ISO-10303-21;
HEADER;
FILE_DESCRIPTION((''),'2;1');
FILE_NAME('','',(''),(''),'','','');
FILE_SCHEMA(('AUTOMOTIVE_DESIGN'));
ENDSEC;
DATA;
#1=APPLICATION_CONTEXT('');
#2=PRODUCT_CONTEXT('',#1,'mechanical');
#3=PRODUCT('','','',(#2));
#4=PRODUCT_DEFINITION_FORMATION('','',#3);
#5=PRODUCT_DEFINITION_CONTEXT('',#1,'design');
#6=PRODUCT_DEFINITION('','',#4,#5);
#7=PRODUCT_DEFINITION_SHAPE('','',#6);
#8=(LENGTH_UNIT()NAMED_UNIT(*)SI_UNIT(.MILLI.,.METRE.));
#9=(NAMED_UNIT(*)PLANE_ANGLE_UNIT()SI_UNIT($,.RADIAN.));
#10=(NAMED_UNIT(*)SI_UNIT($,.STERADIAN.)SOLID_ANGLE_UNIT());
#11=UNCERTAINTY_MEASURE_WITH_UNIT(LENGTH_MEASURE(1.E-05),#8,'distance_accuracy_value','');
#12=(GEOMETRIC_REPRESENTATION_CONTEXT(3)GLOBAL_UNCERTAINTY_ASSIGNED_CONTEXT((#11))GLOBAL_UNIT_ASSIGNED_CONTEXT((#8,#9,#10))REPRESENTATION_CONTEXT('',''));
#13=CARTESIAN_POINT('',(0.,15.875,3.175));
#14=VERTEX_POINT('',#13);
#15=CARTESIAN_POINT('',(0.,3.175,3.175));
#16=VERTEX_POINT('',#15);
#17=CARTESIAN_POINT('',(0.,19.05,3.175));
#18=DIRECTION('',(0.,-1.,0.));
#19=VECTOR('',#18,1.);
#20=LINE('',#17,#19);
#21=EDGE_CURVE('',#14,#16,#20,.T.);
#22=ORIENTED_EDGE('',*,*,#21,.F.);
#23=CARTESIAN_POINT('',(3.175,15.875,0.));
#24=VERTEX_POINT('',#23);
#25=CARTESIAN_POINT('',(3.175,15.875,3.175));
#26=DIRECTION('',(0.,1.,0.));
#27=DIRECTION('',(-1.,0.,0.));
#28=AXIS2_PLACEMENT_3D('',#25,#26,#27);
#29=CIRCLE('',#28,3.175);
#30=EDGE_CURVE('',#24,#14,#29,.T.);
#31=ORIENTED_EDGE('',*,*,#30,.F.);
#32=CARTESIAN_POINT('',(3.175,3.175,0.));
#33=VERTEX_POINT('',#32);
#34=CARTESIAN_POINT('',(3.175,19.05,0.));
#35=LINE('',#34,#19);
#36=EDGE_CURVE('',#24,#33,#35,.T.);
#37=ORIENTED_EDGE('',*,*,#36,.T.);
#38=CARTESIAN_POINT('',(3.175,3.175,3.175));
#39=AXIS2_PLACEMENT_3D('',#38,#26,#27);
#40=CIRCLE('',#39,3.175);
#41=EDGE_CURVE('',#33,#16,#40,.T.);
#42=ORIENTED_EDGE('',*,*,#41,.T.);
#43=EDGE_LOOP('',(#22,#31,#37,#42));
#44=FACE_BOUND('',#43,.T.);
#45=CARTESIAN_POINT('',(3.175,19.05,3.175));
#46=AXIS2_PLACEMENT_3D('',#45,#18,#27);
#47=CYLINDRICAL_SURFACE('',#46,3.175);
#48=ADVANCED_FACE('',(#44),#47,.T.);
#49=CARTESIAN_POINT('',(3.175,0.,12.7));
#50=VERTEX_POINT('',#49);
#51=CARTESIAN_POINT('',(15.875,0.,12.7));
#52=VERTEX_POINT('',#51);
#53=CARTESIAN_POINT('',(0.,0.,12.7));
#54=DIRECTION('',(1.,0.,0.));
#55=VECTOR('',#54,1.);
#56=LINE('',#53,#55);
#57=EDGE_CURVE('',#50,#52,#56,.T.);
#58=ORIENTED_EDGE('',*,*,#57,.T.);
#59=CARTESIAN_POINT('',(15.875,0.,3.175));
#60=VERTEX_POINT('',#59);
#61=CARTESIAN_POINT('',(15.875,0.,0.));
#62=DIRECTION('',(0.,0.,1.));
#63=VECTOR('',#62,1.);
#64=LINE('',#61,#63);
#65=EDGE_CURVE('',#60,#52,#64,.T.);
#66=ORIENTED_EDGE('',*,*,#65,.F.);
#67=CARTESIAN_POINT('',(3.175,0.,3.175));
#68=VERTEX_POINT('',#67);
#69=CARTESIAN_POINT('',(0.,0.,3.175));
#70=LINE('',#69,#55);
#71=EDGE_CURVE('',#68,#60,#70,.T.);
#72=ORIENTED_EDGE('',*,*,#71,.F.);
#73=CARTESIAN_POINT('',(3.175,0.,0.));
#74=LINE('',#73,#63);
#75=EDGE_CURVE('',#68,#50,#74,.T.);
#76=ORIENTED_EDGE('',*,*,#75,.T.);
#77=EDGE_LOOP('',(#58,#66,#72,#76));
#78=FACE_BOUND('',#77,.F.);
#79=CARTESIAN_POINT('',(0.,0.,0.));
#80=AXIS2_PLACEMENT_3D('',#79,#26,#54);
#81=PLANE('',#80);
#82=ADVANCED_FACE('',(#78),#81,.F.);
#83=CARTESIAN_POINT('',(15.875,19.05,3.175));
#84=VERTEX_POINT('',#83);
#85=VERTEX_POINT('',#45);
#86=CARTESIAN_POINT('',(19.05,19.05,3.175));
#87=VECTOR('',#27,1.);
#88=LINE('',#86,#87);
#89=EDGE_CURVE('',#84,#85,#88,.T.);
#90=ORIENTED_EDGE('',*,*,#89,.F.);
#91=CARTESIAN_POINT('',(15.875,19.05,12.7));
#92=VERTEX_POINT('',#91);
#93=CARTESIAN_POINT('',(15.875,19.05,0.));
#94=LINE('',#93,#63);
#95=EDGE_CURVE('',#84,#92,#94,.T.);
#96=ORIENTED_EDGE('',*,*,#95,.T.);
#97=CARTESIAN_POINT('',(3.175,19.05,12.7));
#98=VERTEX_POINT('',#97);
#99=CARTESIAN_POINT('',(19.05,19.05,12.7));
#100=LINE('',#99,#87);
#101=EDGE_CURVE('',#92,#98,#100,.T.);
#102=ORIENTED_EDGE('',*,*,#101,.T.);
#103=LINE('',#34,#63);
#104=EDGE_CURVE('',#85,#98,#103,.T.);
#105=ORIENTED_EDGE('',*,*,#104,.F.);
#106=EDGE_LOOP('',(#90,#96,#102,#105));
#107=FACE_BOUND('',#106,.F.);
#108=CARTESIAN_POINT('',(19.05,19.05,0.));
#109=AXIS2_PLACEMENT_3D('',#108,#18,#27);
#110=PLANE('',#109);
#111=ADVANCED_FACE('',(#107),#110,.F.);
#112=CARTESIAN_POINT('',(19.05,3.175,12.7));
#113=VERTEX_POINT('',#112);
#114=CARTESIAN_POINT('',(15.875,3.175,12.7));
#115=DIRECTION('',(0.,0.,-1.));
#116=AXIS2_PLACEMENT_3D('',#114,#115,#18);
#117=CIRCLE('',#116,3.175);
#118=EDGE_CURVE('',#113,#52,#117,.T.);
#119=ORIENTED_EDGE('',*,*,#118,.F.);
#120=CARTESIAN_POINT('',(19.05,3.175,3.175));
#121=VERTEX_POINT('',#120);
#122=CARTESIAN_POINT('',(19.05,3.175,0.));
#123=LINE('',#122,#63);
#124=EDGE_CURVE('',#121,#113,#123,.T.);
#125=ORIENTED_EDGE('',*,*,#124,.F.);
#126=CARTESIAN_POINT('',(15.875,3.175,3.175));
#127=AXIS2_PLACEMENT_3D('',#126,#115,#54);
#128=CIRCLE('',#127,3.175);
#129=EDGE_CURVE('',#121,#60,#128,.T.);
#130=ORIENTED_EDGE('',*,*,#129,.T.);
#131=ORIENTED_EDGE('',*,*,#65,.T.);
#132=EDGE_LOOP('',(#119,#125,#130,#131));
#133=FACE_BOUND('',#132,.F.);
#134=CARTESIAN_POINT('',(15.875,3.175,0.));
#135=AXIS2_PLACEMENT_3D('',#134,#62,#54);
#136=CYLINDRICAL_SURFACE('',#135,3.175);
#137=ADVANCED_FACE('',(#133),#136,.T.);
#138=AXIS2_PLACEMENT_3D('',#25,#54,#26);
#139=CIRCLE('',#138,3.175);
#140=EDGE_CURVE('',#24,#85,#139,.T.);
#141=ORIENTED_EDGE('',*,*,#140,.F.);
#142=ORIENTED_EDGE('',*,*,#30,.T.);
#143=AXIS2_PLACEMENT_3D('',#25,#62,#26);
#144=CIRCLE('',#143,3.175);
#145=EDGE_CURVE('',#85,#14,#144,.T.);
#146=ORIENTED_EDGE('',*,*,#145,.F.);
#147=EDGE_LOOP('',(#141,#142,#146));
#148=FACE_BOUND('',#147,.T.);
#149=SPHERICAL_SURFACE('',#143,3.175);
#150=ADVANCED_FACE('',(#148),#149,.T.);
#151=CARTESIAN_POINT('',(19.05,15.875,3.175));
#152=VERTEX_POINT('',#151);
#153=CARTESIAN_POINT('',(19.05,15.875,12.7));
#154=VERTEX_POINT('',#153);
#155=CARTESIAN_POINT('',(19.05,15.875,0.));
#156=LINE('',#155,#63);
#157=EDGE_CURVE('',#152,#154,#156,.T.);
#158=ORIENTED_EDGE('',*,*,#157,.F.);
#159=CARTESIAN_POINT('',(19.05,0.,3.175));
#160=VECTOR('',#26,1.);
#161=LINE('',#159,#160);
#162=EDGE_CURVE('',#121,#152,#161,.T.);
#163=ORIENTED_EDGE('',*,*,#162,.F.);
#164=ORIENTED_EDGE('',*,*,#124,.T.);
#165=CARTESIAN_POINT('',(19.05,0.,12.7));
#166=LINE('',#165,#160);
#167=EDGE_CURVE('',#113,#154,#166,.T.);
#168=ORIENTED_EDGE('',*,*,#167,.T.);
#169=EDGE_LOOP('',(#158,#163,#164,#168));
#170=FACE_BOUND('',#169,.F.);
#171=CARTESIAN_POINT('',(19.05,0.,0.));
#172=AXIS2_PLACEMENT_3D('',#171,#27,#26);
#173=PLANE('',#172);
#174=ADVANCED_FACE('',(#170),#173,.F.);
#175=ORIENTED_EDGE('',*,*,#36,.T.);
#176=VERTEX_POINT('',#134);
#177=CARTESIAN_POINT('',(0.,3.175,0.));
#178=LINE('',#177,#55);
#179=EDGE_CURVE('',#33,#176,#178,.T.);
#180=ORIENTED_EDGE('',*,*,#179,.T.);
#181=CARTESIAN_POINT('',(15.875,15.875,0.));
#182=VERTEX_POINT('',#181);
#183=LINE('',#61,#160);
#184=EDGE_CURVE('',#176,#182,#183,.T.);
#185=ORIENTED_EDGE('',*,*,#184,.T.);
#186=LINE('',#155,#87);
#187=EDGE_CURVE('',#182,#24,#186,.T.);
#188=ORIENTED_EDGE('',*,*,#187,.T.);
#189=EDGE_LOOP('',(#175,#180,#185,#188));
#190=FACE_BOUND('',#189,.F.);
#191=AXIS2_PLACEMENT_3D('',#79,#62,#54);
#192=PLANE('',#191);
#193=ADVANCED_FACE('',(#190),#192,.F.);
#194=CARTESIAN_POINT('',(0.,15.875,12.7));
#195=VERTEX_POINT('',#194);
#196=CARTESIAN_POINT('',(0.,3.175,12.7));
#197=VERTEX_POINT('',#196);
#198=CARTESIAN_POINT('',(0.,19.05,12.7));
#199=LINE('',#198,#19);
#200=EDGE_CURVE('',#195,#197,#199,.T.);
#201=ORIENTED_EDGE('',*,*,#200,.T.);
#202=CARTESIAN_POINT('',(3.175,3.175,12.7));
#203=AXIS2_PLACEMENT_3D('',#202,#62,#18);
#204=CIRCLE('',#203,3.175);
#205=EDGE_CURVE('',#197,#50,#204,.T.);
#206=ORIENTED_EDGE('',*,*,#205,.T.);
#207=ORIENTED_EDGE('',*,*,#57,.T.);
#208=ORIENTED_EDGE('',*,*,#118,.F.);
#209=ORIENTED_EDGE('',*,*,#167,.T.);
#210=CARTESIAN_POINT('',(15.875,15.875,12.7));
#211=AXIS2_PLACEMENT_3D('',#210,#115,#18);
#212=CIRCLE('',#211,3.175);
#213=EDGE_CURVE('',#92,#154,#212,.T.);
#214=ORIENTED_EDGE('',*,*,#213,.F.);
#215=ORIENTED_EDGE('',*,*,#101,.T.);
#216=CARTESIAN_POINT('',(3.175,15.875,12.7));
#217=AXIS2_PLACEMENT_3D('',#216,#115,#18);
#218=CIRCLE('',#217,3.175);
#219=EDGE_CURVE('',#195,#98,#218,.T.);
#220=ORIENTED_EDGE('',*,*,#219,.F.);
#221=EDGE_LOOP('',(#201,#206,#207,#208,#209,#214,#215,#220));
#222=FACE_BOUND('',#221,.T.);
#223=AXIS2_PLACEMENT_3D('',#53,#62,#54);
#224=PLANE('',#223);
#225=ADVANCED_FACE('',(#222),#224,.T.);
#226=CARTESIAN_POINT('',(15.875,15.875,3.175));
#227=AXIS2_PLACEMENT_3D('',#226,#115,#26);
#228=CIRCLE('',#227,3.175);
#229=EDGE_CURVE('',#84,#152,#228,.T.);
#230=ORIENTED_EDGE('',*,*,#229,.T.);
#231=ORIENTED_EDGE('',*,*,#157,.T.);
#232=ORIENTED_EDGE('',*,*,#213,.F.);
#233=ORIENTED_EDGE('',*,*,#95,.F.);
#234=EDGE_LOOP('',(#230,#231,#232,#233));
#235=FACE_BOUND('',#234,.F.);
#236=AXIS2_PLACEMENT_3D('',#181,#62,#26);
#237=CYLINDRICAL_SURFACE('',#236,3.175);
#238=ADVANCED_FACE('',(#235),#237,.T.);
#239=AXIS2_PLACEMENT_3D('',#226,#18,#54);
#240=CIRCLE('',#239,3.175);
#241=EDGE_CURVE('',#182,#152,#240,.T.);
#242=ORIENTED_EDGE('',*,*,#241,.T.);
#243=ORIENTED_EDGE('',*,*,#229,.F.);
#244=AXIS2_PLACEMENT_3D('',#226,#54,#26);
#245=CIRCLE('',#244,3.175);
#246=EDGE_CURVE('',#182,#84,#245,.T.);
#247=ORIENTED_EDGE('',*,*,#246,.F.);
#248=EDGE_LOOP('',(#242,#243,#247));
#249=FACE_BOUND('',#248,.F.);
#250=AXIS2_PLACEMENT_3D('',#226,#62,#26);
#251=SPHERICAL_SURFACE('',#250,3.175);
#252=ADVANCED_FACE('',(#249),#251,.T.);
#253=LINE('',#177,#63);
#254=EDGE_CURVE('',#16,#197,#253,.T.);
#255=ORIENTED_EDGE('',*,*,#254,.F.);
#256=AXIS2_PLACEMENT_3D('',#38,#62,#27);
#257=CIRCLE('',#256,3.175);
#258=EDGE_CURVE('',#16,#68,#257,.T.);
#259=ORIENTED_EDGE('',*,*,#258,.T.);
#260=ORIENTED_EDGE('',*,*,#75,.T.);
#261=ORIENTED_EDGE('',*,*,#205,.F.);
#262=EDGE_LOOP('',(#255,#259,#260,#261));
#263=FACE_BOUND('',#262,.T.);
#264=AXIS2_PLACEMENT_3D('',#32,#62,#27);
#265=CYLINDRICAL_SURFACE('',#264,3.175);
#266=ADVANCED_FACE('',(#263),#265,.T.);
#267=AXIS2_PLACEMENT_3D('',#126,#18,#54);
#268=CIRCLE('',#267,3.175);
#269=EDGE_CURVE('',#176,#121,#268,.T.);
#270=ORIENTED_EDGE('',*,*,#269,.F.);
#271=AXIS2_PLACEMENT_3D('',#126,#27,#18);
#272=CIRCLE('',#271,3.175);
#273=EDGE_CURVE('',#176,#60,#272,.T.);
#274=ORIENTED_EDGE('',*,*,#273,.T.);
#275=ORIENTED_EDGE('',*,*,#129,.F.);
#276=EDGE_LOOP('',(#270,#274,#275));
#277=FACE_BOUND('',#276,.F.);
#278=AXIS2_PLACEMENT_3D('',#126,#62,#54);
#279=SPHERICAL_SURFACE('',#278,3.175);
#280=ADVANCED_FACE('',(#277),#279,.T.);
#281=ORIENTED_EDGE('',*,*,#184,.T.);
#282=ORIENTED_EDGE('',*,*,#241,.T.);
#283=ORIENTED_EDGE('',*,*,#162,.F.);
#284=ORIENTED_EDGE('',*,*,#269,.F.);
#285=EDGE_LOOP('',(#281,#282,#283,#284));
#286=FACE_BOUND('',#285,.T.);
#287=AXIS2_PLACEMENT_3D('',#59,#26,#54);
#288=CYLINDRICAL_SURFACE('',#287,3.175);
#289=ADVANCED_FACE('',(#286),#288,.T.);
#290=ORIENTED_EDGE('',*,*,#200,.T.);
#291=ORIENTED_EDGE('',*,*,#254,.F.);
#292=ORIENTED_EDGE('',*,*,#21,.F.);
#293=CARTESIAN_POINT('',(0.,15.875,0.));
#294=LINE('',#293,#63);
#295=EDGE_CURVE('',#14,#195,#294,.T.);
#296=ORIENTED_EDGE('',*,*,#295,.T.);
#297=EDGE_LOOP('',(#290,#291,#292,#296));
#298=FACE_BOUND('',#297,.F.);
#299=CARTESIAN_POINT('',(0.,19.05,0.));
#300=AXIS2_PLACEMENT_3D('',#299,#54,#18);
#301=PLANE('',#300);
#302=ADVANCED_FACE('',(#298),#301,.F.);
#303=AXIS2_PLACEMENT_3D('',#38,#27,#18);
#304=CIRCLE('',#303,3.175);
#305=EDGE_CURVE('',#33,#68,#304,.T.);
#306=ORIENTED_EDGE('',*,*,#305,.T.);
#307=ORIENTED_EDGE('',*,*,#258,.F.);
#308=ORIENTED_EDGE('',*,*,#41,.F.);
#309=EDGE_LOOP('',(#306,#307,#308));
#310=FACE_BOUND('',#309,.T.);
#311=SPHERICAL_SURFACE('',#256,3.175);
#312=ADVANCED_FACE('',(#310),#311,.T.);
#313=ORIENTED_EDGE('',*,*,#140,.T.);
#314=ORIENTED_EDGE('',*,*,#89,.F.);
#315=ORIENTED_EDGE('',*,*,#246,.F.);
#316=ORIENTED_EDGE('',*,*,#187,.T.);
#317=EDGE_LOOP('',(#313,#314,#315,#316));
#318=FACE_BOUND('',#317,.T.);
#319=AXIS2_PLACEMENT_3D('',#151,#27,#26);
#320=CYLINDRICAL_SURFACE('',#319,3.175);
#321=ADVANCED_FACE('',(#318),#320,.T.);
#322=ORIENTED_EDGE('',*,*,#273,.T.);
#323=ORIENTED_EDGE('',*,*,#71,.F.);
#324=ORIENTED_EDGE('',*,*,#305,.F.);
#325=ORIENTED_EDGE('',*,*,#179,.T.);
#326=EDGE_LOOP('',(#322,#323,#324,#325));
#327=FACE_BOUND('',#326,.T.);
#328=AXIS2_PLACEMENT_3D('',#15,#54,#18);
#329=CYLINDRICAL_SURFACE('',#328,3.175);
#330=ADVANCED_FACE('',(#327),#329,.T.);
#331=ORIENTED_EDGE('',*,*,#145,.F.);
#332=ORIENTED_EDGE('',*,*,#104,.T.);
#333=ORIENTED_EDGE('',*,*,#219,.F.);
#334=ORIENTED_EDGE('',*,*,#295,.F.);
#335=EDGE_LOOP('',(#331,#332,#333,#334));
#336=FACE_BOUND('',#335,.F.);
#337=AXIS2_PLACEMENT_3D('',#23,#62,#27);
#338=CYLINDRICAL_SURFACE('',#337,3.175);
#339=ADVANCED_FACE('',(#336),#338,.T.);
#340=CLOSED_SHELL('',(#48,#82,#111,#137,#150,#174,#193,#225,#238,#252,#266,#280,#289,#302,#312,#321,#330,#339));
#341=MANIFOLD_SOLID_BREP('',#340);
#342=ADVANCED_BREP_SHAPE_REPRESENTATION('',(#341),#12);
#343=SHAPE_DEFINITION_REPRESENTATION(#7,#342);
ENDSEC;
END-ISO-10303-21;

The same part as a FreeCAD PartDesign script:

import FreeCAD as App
import Part
import Sketcher
Q = App.Units.Quantity


def edges_at(feature, points):
    """Names of the edges that pass closest to the given points."""
    edges = feature.Shape.Edges
    near = lambda p: min(range(len(edges)), key=lambda i: edges[i].distToShape(Part.Vertex(*p))[0])
    return sorted({f"Edge{near(p) + 1}" for p in points})

doc = App.newDocument("Part")
body = doc.addObject("PartDesign::Body", "Body")

sketch1 = doc.addObject("Sketcher::SketchObject", "Sketch")
body.addObject(sketch1)
sketch1.AttachmentSupport = (doc.XY_Plane, [""])
sketch1.MapMode = "FlatFace"
sketch1.addGeometry([
    Part.LineSegment(App.Vector(0, 19, 0), App.Vector(0, 0, 0)),
    Part.LineSegment(App.Vector(0, 0, 0), App.Vector(19, 0, 0)),
    Part.LineSegment(App.Vector(19, 0, 0), App.Vector(19, 19, 0)),
    Part.LineSegment(App.Vector(19, 19, 0), App.Vector(0, 19, 0)),
], False)
sketch1.addConstraint([
    Sketcher.Constraint("Coincident", 0, 2, 1, 1),
    Sketcher.Constraint("Coincident", 1, 2, 2, 1),
    Sketcher.Constraint("Coincident", 2, 2, 3, 1),
    Sketcher.Constraint("Coincident", 3, 2, 0, 1),
    Sketcher.Constraint("Vertical", 0),
    Sketcher.Constraint("Horizontal", 1),
    Sketcher.Constraint("Vertical", 2),
    Sketcher.Constraint("Horizontal", 3),
    Sketcher.Constraint("Coincident", 0, 2, -1, 1),
    Sketcher.Constraint("Equal", 3, 0),
    Sketcher.Constraint("DistanceX", 1, 1, 1, 2, Q("0.75 in")),
])
pad1 = doc.addObject("PartDesign::Pad", "Pad")
body.addObject(pad1)
pad1.Profile = sketch1
pad1.Length = Q("0.5 in")
doc.recompute()

fillet = doc.addObject("PartDesign::Fillet", "Fillet")
body.addObject(fillet)
fillet.Base = (pad1, edges_at(pad1, [
    (19.05, 19.05, 6.35),
    (0, 19.05, 6.35),
    (0, 0, 6.35),
    (19.05, 0, 6.35),
    (9.525, 19.05, 0),
    (0, 9.525, 0),
    (19.05, 9.525, 0),
    (9.525, 0, 0),
]))
fillet.Radius = Q("0.125 in")

doc.recompute()
